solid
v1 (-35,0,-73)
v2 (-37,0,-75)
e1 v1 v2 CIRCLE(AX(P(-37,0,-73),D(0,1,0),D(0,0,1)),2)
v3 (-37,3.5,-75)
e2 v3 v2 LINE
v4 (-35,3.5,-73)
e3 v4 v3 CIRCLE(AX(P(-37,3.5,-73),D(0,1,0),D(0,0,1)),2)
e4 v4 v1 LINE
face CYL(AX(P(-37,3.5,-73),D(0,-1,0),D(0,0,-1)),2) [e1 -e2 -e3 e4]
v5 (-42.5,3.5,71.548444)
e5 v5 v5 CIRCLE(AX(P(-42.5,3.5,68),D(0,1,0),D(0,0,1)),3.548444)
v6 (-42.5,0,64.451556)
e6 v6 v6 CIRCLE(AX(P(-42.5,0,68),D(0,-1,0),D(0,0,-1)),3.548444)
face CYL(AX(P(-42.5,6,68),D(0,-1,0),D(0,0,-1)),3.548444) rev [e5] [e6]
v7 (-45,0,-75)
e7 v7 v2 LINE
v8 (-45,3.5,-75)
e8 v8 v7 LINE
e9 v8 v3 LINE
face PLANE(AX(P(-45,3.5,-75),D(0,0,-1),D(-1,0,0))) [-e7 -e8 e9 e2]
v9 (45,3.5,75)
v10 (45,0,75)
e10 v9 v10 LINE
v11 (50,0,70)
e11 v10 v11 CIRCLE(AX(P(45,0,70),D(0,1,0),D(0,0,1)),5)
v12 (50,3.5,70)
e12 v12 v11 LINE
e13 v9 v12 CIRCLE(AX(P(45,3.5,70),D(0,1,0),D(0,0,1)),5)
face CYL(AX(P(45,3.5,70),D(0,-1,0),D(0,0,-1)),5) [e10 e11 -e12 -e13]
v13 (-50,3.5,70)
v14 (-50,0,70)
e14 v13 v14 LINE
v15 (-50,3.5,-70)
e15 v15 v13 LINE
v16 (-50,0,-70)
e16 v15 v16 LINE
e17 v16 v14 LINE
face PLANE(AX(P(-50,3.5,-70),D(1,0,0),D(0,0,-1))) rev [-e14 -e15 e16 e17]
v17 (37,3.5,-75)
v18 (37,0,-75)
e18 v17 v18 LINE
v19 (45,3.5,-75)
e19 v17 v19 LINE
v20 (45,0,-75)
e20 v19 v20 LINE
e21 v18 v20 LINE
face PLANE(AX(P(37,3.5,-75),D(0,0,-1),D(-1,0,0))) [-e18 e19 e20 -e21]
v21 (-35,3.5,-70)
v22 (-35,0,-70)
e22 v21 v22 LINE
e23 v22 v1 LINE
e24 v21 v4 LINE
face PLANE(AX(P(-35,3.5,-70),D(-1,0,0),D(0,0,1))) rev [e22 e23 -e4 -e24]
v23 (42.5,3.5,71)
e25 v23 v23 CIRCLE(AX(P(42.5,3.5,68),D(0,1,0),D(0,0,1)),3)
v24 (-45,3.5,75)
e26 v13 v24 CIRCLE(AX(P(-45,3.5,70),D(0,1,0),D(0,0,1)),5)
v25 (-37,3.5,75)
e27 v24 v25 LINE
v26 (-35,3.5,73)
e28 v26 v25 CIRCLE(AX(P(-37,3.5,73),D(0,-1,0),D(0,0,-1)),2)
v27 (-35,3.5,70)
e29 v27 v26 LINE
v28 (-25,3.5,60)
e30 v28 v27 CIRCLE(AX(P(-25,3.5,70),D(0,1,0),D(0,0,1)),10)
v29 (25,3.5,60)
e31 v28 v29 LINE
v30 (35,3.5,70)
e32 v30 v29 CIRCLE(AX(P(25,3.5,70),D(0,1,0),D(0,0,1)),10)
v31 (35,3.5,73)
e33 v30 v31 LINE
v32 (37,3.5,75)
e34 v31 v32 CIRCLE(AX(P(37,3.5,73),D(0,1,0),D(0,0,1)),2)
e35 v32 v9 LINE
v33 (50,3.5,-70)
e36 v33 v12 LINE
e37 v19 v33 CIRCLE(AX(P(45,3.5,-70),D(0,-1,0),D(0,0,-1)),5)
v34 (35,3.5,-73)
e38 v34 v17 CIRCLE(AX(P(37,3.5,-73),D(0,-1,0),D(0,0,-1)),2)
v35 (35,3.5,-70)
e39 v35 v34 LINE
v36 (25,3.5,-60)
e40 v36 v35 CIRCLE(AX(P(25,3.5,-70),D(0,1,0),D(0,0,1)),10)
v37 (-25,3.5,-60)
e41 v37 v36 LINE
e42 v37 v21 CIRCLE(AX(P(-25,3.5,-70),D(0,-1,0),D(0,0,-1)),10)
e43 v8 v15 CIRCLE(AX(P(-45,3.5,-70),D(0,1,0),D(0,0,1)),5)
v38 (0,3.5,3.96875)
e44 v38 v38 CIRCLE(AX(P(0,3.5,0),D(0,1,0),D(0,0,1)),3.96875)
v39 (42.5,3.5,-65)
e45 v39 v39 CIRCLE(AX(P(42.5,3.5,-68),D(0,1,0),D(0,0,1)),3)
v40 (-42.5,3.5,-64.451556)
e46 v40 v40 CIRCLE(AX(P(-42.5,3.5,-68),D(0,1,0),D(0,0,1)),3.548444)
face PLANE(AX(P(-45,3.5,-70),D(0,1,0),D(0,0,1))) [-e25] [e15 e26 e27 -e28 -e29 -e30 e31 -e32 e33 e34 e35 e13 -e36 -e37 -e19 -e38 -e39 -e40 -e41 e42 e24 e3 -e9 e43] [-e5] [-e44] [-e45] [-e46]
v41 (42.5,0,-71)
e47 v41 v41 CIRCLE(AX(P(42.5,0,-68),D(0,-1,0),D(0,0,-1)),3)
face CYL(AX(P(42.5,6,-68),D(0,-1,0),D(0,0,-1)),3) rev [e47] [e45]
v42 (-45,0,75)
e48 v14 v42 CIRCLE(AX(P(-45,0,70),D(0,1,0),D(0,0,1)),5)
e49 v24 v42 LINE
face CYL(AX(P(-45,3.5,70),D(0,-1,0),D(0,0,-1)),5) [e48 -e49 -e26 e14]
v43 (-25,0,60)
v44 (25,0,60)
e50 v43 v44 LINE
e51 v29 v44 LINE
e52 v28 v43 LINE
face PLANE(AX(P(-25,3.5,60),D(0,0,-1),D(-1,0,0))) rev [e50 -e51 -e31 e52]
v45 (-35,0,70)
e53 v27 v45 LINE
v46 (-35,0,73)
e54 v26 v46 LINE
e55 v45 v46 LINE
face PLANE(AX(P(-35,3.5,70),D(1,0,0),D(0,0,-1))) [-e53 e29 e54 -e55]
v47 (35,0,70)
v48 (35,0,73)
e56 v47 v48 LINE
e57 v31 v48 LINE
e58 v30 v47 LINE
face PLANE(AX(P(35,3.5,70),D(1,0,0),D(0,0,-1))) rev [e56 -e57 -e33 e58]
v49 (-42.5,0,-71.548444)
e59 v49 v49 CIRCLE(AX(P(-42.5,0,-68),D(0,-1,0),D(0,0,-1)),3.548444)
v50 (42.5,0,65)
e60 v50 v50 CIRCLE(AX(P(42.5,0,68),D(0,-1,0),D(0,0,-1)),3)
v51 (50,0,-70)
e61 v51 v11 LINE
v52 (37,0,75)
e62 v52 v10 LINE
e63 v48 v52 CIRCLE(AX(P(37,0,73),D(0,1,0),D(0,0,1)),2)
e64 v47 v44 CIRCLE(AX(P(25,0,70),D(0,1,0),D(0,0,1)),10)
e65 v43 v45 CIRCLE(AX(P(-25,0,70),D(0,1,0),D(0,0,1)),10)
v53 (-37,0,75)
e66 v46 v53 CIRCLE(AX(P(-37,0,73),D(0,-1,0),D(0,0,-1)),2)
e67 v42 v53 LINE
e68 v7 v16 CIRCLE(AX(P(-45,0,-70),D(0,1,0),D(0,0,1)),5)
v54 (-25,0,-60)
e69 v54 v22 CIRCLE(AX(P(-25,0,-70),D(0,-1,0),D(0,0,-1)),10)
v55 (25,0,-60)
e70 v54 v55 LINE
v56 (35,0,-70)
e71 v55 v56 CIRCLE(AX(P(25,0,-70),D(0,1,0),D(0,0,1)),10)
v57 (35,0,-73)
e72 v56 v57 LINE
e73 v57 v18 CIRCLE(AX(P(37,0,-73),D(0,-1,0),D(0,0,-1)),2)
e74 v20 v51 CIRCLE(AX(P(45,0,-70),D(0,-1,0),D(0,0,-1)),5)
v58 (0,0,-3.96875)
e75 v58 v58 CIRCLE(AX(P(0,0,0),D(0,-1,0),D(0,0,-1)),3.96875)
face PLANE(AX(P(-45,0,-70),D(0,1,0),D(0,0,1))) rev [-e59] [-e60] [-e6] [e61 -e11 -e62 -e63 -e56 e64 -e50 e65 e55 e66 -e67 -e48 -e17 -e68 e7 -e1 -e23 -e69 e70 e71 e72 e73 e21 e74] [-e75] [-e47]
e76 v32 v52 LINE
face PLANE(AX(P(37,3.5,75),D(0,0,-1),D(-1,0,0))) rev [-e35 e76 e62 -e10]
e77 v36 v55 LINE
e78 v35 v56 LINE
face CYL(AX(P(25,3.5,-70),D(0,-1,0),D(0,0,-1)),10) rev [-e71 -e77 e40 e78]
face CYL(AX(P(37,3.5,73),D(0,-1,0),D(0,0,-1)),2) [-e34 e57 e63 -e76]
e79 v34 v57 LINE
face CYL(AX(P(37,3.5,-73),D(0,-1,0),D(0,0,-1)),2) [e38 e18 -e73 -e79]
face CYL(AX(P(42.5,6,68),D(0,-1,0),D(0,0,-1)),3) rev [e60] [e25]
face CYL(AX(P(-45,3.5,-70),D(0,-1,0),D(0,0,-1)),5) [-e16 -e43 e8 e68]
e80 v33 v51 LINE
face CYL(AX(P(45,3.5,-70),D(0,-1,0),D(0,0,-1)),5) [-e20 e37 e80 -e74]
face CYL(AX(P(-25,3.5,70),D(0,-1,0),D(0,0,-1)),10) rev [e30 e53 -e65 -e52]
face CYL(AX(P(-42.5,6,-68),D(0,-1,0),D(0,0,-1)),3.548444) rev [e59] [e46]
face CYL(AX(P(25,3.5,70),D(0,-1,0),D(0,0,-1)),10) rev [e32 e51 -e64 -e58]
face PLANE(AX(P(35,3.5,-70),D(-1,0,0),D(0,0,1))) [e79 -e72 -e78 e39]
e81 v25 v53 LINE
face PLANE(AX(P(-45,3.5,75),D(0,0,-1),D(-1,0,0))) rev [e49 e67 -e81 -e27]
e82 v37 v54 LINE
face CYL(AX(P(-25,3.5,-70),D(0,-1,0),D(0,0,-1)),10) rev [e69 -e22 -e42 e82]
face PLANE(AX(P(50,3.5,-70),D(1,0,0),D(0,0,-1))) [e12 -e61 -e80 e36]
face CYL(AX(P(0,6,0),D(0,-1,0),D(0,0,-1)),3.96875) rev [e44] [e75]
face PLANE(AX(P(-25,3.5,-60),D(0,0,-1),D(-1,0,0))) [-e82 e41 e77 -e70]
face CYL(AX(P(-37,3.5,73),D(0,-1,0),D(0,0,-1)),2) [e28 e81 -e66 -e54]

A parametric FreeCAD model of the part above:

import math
import FreeCAD as App
import Part
import Sketcher
from FreeCAD import Vector
Q = App.Units.Quantity

doc = App.newDocument("Part")
body = doc.addObject("PartDesign::Body", "Body")

# Sketch on XZ plane
sketch1 = body.newObject("Sketcher::SketchObject", "Sketch")
sketch1.AttachmentSupport = (doc.getObject("XZ_Plane"), [""])
sketch1.MapMode = "FlatFace"
sketch1.addGeometry([
    Part.LineSegment(Vector(25, -60, 0), Vector(-25, -60, 0)),  # 0
    Part.ArcOfCircle(Part.Circle(Vector(-25, -70, 0), Vector(0, 0, 1), 10), math.radians(90), math.radians(180)),  # 1
    Part.LineSegment(Vector(-35, -70, 0), Vector(-35, -73, 0)),  # 2
    Part.ArcOfCircle(Part.Circle(Vector(-37, -73, 0), Vector(0, 0, 1), 2), math.radians(-90), math.radians(0)),  # 3
    Part.LineSegment(Vector(-37, -75, 0), Vector(-45, -75, 0)),  # 4
    Part.ArcOfCircle(Part.Circle(Vector(-45, -70, 0), Vector(0, 0, 1), 5), math.radians(180), math.radians(270)),  # 5
    Part.LineSegment(Vector(-50, -70, 0), Vector(-50, 70, 0)),  # 6
    Part.ArcOfCircle(Part.Circle(Vector(-45, 70, 0), Vector(0, 0, 1), 5), math.radians(90), math.radians(180)),  # 7
    Part.LineSegment(Vector(-45, 75, 0), Vector(-37, 75, 0)),  # 8
    Part.ArcOfCircle(Part.Circle(Vector(-37, 73, 0), Vector(0, 0, 1), 2), math.radians(0), math.radians(90)),  # 9
    Part.LineSegment(Vector(-35, 73, 0), Vector(-35, 70, 0)),  # 10
    Part.ArcOfCircle(Part.Circle(Vector(-25, 70, 0), Vector(0, 0, 1), 10), math.radians(180), math.radians(270)),  # 11
    Part.LineSegment(Vector(-25, 60, 0), Vector(25, 60, 0)),  # 12
    Part.ArcOfCircle(Part.Circle(Vector(25, 70, 0), Vector(0, 0, 1), 10), math.radians(-90), math.radians(0)),  # 13
    Part.LineSegment(Vector(35, 70, 0), Vector(35, 73, 0)),  # 14
    Part.ArcOfCircle(Part.Circle(Vector(37, 73, 0), Vector(0, 0, 1), 2), math.radians(90), math.radians(180)),  # 15
    Part.LineSegment(Vector(37, 75, 0), Vector(45, 75, 0)),  # 16
    Part.ArcOfCircle(Part.Circle(Vector(45, 70, 0), Vector(0, 0, 1), 5), math.radians(0), math.radians(90)),  # 17
    Part.LineSegment(Vector(50, 70, 0), Vector(50, -70, 0)),  # 18
    Part.ArcOfCircle(Part.Circle(Vector(45, -70, 0), Vector(0, 0, 1), 5), math.radians(-90), math.radians(0)),  # 19
    Part.LineSegment(Vector(45, -75, 0), Vector(37, -75, 0)),  # 20
    Part.ArcOfCircle(Part.Circle(Vector(37, -73, 0), Vector(0, 0, 1), 2), math.radians(-180), math.radians(-90)),  # 21
    Part.LineSegment(Vector(35, -73, 0), Vector(35, -70, 0)),  # 22
    Part.ArcOfCircle(Part.Circle(Vector(25, -70, 0), Vector(0, 0, 1), 10), math.radians(0), math.radians(90)),  # 23
], False)
sketch1.addConstraint([
    Sketcher.Constraint("Tangent", 0, 2, 1, 1),
    Sketcher.Constraint("Tangent", 1, 2, 2, 1),
    Sketcher.Constraint("Tangent", 2, 2, 3, 2),
    Sketcher.Constraint("Tangent", 3, 1, 4, 1),
    Sketcher.Constraint("Tangent", 4, 2, 5, 2),
    Sketcher.Constraint("Tangent", 5, 1, 6, 1),
    Sketcher.Constraint("Tangent", 6, 2, 7, 2),
    Sketcher.Constraint("Tangent", 7, 1, 8, 1),
    Sketcher.Constraint("Tangent", 8, 2, 9, 2),
    Sketcher.Constraint("Tangent", 9, 1, 10, 1),
    Sketcher.Constraint("Tangent", 10, 2, 11, 1),
    Sketcher.Constraint("Tangent", 11, 2, 12, 1),
    Sketcher.Constraint("Tangent", 12, 2, 13, 1),
    Sketcher.Constraint("Tangent", 13, 2, 14, 1),
    Sketcher.Constraint("Tangent", 14, 2, 15, 2),
    Sketcher.Constraint("Tangent", 15, 1, 16, 1),
    Sketcher.Constraint("Tangent", 16, 2, 17, 2),
    Sketcher.Constraint("Tangent", 17, 1, 18, 1),
    Sketcher.Constraint("Tangent", 18, 2, 19, 2),
    Sketcher.Constraint("Tangent", 19, 1, 20, 1),
    Sketcher.Constraint("Tangent", 20, 2, 21, 2),
    Sketcher.Constraint("Tangent", 21, 1, 22, 1),
    Sketcher.Constraint("Tangent", 22, 2, 23, 1),
    Sketcher.Constraint("Tangent", 23, 2, 0, 1),
    Sketcher.Constraint("Horizontal", 0),
    Sketcher.Constraint("Vertical", 2),
    Sketcher.Constraint("Horizontal", 4),
    Sketcher.Constraint("Vertical", 6),
    Sketcher.Constraint("Horizontal", 8),
    Sketcher.Constraint("Vertical", 10),
    Sketcher.Constraint("Horizontal", 12),
    Sketcher.Constraint("Vertical", 14),
    Sketcher.Constraint("Horizontal", 16),
    Sketcher.Constraint("Vertical", 18),
    Sketcher.Constraint("Horizontal", 20),
    Sketcher.Constraint("Vertical", 22),
    Sketcher.Constraint("Equal", 5, 7),
    Sketcher.Constraint("Equal", 3, 9),
    Sketcher.Constraint("Equal", 1, 11),
    Sketcher.Constraint("Equal", 11, 13),
    Sketcher.Constraint("Equal", 9, 15),
    Sketcher.Constraint("Equal", 7, 17),
    Sketcher.Constraint("Equal", 17, 19),
    Sketcher.Constraint("Equal", 15, 21),
    Sketcher.Constraint("Equal", 13, 23),
    Sketcher.Constraint("Symmetric", 1, 3, 13, 3, -1, 1),
    Sketcher.Constraint("Symmetric", 5, 3, 17, 3, -1, 1),
    Sketcher.Constraint("Symmetric", 9, 3, 21, 3, -1, 1),
    Sketcher.Constraint("Symmetric", 9, 3, 15, 3, -2),
    Sketcher.Constraint("Horizontal", 1, 3, 5, 3),
    Sketcher.Constraint("Radius", 1, Q("10 mm")),
    Sketcher.Constraint("Radius", 3, Q("2 mm")),
    Sketcher.Constraint("Radius", 5, Q("5 mm")),
    Sketcher.Constraint("DistanceX", 0, 2, 0, 1, Q("50 mm")),
    Sketcher.Constraint("DistanceX", 4, 2, 4, 1, Q("8 mm")),
    Sketcher.Constraint("DistanceY", 6, 1, 6, 2, Q("140 mm")),
])
pad1 = body.newObject("PartDesign::Pad", "Pad")
pad1.Profile = sketch1
pad1.Length = 3.5
pad1.Reversed = True

# Sketch on XZ plane
sketch2 = body.newObject("Sketcher::SketchObject", "Sketch001")
sketch2.AttachmentSupport = (doc.getObject("XZ_Plane"), [""])
sketch2.MapMode = "FlatFace"
sketch2.addGeometry([
    Part.Circle(Vector(0, 0, 0), Vector(0, 0, 1), 4),  # 0
    Part.Circle(Vector(42.5, -68, 0), Vector(0, 0, 1), 3),  # 1
    Part.Circle(Vector(-42.5, -68, 0), Vector(0, 0, 1), 3.5),  # 2
    Part.Circle(Vector(42.5, 68, 0), Vector(0, 0, 1), 3),  # 3
    Part.Circle(Vector(-42.5, 68, 0), Vector(0, 0, 1), 3.5),  # 4
], False)
sketch2.addConstraint([
    Sketcher.Constraint("Coincident", 0, 3, -1, 1),
    Sketcher.Constraint("Equal", 1, 3),
    Sketcher.Constraint("Equal", 2, 4),
    Sketcher.Constraint("Symmetric", 2, 3, 3, 3, -1, 1),
    Sketcher.Constraint("Symmetric", 1, 3, 4, 3, -1, 1),
    Sketcher.Constraint("Symmetric", 1, 3, 2, 3, -2),
    Sketcher.Constraint("Diameter", 1, Q("6 mm")),
    Sketcher.Constraint("DistanceY", 1, 3, -1, 1, Q("68 mm")),
    Sketcher.Constraint("DistanceX", 2, 3, 1, 3, Q("85 mm")),
    Sketcher.Constraint("Diameter", 0, Q("7.9375 mm")),
    Sketcher.Constraint("Diameter", 2, Q("7.096888 mm")),
])
pocket1 = body.newObject("PartDesign::Pocket", "Pocket")
pocket1.Profile = sketch2
pocket1.Length = 6

doc.recompute()
